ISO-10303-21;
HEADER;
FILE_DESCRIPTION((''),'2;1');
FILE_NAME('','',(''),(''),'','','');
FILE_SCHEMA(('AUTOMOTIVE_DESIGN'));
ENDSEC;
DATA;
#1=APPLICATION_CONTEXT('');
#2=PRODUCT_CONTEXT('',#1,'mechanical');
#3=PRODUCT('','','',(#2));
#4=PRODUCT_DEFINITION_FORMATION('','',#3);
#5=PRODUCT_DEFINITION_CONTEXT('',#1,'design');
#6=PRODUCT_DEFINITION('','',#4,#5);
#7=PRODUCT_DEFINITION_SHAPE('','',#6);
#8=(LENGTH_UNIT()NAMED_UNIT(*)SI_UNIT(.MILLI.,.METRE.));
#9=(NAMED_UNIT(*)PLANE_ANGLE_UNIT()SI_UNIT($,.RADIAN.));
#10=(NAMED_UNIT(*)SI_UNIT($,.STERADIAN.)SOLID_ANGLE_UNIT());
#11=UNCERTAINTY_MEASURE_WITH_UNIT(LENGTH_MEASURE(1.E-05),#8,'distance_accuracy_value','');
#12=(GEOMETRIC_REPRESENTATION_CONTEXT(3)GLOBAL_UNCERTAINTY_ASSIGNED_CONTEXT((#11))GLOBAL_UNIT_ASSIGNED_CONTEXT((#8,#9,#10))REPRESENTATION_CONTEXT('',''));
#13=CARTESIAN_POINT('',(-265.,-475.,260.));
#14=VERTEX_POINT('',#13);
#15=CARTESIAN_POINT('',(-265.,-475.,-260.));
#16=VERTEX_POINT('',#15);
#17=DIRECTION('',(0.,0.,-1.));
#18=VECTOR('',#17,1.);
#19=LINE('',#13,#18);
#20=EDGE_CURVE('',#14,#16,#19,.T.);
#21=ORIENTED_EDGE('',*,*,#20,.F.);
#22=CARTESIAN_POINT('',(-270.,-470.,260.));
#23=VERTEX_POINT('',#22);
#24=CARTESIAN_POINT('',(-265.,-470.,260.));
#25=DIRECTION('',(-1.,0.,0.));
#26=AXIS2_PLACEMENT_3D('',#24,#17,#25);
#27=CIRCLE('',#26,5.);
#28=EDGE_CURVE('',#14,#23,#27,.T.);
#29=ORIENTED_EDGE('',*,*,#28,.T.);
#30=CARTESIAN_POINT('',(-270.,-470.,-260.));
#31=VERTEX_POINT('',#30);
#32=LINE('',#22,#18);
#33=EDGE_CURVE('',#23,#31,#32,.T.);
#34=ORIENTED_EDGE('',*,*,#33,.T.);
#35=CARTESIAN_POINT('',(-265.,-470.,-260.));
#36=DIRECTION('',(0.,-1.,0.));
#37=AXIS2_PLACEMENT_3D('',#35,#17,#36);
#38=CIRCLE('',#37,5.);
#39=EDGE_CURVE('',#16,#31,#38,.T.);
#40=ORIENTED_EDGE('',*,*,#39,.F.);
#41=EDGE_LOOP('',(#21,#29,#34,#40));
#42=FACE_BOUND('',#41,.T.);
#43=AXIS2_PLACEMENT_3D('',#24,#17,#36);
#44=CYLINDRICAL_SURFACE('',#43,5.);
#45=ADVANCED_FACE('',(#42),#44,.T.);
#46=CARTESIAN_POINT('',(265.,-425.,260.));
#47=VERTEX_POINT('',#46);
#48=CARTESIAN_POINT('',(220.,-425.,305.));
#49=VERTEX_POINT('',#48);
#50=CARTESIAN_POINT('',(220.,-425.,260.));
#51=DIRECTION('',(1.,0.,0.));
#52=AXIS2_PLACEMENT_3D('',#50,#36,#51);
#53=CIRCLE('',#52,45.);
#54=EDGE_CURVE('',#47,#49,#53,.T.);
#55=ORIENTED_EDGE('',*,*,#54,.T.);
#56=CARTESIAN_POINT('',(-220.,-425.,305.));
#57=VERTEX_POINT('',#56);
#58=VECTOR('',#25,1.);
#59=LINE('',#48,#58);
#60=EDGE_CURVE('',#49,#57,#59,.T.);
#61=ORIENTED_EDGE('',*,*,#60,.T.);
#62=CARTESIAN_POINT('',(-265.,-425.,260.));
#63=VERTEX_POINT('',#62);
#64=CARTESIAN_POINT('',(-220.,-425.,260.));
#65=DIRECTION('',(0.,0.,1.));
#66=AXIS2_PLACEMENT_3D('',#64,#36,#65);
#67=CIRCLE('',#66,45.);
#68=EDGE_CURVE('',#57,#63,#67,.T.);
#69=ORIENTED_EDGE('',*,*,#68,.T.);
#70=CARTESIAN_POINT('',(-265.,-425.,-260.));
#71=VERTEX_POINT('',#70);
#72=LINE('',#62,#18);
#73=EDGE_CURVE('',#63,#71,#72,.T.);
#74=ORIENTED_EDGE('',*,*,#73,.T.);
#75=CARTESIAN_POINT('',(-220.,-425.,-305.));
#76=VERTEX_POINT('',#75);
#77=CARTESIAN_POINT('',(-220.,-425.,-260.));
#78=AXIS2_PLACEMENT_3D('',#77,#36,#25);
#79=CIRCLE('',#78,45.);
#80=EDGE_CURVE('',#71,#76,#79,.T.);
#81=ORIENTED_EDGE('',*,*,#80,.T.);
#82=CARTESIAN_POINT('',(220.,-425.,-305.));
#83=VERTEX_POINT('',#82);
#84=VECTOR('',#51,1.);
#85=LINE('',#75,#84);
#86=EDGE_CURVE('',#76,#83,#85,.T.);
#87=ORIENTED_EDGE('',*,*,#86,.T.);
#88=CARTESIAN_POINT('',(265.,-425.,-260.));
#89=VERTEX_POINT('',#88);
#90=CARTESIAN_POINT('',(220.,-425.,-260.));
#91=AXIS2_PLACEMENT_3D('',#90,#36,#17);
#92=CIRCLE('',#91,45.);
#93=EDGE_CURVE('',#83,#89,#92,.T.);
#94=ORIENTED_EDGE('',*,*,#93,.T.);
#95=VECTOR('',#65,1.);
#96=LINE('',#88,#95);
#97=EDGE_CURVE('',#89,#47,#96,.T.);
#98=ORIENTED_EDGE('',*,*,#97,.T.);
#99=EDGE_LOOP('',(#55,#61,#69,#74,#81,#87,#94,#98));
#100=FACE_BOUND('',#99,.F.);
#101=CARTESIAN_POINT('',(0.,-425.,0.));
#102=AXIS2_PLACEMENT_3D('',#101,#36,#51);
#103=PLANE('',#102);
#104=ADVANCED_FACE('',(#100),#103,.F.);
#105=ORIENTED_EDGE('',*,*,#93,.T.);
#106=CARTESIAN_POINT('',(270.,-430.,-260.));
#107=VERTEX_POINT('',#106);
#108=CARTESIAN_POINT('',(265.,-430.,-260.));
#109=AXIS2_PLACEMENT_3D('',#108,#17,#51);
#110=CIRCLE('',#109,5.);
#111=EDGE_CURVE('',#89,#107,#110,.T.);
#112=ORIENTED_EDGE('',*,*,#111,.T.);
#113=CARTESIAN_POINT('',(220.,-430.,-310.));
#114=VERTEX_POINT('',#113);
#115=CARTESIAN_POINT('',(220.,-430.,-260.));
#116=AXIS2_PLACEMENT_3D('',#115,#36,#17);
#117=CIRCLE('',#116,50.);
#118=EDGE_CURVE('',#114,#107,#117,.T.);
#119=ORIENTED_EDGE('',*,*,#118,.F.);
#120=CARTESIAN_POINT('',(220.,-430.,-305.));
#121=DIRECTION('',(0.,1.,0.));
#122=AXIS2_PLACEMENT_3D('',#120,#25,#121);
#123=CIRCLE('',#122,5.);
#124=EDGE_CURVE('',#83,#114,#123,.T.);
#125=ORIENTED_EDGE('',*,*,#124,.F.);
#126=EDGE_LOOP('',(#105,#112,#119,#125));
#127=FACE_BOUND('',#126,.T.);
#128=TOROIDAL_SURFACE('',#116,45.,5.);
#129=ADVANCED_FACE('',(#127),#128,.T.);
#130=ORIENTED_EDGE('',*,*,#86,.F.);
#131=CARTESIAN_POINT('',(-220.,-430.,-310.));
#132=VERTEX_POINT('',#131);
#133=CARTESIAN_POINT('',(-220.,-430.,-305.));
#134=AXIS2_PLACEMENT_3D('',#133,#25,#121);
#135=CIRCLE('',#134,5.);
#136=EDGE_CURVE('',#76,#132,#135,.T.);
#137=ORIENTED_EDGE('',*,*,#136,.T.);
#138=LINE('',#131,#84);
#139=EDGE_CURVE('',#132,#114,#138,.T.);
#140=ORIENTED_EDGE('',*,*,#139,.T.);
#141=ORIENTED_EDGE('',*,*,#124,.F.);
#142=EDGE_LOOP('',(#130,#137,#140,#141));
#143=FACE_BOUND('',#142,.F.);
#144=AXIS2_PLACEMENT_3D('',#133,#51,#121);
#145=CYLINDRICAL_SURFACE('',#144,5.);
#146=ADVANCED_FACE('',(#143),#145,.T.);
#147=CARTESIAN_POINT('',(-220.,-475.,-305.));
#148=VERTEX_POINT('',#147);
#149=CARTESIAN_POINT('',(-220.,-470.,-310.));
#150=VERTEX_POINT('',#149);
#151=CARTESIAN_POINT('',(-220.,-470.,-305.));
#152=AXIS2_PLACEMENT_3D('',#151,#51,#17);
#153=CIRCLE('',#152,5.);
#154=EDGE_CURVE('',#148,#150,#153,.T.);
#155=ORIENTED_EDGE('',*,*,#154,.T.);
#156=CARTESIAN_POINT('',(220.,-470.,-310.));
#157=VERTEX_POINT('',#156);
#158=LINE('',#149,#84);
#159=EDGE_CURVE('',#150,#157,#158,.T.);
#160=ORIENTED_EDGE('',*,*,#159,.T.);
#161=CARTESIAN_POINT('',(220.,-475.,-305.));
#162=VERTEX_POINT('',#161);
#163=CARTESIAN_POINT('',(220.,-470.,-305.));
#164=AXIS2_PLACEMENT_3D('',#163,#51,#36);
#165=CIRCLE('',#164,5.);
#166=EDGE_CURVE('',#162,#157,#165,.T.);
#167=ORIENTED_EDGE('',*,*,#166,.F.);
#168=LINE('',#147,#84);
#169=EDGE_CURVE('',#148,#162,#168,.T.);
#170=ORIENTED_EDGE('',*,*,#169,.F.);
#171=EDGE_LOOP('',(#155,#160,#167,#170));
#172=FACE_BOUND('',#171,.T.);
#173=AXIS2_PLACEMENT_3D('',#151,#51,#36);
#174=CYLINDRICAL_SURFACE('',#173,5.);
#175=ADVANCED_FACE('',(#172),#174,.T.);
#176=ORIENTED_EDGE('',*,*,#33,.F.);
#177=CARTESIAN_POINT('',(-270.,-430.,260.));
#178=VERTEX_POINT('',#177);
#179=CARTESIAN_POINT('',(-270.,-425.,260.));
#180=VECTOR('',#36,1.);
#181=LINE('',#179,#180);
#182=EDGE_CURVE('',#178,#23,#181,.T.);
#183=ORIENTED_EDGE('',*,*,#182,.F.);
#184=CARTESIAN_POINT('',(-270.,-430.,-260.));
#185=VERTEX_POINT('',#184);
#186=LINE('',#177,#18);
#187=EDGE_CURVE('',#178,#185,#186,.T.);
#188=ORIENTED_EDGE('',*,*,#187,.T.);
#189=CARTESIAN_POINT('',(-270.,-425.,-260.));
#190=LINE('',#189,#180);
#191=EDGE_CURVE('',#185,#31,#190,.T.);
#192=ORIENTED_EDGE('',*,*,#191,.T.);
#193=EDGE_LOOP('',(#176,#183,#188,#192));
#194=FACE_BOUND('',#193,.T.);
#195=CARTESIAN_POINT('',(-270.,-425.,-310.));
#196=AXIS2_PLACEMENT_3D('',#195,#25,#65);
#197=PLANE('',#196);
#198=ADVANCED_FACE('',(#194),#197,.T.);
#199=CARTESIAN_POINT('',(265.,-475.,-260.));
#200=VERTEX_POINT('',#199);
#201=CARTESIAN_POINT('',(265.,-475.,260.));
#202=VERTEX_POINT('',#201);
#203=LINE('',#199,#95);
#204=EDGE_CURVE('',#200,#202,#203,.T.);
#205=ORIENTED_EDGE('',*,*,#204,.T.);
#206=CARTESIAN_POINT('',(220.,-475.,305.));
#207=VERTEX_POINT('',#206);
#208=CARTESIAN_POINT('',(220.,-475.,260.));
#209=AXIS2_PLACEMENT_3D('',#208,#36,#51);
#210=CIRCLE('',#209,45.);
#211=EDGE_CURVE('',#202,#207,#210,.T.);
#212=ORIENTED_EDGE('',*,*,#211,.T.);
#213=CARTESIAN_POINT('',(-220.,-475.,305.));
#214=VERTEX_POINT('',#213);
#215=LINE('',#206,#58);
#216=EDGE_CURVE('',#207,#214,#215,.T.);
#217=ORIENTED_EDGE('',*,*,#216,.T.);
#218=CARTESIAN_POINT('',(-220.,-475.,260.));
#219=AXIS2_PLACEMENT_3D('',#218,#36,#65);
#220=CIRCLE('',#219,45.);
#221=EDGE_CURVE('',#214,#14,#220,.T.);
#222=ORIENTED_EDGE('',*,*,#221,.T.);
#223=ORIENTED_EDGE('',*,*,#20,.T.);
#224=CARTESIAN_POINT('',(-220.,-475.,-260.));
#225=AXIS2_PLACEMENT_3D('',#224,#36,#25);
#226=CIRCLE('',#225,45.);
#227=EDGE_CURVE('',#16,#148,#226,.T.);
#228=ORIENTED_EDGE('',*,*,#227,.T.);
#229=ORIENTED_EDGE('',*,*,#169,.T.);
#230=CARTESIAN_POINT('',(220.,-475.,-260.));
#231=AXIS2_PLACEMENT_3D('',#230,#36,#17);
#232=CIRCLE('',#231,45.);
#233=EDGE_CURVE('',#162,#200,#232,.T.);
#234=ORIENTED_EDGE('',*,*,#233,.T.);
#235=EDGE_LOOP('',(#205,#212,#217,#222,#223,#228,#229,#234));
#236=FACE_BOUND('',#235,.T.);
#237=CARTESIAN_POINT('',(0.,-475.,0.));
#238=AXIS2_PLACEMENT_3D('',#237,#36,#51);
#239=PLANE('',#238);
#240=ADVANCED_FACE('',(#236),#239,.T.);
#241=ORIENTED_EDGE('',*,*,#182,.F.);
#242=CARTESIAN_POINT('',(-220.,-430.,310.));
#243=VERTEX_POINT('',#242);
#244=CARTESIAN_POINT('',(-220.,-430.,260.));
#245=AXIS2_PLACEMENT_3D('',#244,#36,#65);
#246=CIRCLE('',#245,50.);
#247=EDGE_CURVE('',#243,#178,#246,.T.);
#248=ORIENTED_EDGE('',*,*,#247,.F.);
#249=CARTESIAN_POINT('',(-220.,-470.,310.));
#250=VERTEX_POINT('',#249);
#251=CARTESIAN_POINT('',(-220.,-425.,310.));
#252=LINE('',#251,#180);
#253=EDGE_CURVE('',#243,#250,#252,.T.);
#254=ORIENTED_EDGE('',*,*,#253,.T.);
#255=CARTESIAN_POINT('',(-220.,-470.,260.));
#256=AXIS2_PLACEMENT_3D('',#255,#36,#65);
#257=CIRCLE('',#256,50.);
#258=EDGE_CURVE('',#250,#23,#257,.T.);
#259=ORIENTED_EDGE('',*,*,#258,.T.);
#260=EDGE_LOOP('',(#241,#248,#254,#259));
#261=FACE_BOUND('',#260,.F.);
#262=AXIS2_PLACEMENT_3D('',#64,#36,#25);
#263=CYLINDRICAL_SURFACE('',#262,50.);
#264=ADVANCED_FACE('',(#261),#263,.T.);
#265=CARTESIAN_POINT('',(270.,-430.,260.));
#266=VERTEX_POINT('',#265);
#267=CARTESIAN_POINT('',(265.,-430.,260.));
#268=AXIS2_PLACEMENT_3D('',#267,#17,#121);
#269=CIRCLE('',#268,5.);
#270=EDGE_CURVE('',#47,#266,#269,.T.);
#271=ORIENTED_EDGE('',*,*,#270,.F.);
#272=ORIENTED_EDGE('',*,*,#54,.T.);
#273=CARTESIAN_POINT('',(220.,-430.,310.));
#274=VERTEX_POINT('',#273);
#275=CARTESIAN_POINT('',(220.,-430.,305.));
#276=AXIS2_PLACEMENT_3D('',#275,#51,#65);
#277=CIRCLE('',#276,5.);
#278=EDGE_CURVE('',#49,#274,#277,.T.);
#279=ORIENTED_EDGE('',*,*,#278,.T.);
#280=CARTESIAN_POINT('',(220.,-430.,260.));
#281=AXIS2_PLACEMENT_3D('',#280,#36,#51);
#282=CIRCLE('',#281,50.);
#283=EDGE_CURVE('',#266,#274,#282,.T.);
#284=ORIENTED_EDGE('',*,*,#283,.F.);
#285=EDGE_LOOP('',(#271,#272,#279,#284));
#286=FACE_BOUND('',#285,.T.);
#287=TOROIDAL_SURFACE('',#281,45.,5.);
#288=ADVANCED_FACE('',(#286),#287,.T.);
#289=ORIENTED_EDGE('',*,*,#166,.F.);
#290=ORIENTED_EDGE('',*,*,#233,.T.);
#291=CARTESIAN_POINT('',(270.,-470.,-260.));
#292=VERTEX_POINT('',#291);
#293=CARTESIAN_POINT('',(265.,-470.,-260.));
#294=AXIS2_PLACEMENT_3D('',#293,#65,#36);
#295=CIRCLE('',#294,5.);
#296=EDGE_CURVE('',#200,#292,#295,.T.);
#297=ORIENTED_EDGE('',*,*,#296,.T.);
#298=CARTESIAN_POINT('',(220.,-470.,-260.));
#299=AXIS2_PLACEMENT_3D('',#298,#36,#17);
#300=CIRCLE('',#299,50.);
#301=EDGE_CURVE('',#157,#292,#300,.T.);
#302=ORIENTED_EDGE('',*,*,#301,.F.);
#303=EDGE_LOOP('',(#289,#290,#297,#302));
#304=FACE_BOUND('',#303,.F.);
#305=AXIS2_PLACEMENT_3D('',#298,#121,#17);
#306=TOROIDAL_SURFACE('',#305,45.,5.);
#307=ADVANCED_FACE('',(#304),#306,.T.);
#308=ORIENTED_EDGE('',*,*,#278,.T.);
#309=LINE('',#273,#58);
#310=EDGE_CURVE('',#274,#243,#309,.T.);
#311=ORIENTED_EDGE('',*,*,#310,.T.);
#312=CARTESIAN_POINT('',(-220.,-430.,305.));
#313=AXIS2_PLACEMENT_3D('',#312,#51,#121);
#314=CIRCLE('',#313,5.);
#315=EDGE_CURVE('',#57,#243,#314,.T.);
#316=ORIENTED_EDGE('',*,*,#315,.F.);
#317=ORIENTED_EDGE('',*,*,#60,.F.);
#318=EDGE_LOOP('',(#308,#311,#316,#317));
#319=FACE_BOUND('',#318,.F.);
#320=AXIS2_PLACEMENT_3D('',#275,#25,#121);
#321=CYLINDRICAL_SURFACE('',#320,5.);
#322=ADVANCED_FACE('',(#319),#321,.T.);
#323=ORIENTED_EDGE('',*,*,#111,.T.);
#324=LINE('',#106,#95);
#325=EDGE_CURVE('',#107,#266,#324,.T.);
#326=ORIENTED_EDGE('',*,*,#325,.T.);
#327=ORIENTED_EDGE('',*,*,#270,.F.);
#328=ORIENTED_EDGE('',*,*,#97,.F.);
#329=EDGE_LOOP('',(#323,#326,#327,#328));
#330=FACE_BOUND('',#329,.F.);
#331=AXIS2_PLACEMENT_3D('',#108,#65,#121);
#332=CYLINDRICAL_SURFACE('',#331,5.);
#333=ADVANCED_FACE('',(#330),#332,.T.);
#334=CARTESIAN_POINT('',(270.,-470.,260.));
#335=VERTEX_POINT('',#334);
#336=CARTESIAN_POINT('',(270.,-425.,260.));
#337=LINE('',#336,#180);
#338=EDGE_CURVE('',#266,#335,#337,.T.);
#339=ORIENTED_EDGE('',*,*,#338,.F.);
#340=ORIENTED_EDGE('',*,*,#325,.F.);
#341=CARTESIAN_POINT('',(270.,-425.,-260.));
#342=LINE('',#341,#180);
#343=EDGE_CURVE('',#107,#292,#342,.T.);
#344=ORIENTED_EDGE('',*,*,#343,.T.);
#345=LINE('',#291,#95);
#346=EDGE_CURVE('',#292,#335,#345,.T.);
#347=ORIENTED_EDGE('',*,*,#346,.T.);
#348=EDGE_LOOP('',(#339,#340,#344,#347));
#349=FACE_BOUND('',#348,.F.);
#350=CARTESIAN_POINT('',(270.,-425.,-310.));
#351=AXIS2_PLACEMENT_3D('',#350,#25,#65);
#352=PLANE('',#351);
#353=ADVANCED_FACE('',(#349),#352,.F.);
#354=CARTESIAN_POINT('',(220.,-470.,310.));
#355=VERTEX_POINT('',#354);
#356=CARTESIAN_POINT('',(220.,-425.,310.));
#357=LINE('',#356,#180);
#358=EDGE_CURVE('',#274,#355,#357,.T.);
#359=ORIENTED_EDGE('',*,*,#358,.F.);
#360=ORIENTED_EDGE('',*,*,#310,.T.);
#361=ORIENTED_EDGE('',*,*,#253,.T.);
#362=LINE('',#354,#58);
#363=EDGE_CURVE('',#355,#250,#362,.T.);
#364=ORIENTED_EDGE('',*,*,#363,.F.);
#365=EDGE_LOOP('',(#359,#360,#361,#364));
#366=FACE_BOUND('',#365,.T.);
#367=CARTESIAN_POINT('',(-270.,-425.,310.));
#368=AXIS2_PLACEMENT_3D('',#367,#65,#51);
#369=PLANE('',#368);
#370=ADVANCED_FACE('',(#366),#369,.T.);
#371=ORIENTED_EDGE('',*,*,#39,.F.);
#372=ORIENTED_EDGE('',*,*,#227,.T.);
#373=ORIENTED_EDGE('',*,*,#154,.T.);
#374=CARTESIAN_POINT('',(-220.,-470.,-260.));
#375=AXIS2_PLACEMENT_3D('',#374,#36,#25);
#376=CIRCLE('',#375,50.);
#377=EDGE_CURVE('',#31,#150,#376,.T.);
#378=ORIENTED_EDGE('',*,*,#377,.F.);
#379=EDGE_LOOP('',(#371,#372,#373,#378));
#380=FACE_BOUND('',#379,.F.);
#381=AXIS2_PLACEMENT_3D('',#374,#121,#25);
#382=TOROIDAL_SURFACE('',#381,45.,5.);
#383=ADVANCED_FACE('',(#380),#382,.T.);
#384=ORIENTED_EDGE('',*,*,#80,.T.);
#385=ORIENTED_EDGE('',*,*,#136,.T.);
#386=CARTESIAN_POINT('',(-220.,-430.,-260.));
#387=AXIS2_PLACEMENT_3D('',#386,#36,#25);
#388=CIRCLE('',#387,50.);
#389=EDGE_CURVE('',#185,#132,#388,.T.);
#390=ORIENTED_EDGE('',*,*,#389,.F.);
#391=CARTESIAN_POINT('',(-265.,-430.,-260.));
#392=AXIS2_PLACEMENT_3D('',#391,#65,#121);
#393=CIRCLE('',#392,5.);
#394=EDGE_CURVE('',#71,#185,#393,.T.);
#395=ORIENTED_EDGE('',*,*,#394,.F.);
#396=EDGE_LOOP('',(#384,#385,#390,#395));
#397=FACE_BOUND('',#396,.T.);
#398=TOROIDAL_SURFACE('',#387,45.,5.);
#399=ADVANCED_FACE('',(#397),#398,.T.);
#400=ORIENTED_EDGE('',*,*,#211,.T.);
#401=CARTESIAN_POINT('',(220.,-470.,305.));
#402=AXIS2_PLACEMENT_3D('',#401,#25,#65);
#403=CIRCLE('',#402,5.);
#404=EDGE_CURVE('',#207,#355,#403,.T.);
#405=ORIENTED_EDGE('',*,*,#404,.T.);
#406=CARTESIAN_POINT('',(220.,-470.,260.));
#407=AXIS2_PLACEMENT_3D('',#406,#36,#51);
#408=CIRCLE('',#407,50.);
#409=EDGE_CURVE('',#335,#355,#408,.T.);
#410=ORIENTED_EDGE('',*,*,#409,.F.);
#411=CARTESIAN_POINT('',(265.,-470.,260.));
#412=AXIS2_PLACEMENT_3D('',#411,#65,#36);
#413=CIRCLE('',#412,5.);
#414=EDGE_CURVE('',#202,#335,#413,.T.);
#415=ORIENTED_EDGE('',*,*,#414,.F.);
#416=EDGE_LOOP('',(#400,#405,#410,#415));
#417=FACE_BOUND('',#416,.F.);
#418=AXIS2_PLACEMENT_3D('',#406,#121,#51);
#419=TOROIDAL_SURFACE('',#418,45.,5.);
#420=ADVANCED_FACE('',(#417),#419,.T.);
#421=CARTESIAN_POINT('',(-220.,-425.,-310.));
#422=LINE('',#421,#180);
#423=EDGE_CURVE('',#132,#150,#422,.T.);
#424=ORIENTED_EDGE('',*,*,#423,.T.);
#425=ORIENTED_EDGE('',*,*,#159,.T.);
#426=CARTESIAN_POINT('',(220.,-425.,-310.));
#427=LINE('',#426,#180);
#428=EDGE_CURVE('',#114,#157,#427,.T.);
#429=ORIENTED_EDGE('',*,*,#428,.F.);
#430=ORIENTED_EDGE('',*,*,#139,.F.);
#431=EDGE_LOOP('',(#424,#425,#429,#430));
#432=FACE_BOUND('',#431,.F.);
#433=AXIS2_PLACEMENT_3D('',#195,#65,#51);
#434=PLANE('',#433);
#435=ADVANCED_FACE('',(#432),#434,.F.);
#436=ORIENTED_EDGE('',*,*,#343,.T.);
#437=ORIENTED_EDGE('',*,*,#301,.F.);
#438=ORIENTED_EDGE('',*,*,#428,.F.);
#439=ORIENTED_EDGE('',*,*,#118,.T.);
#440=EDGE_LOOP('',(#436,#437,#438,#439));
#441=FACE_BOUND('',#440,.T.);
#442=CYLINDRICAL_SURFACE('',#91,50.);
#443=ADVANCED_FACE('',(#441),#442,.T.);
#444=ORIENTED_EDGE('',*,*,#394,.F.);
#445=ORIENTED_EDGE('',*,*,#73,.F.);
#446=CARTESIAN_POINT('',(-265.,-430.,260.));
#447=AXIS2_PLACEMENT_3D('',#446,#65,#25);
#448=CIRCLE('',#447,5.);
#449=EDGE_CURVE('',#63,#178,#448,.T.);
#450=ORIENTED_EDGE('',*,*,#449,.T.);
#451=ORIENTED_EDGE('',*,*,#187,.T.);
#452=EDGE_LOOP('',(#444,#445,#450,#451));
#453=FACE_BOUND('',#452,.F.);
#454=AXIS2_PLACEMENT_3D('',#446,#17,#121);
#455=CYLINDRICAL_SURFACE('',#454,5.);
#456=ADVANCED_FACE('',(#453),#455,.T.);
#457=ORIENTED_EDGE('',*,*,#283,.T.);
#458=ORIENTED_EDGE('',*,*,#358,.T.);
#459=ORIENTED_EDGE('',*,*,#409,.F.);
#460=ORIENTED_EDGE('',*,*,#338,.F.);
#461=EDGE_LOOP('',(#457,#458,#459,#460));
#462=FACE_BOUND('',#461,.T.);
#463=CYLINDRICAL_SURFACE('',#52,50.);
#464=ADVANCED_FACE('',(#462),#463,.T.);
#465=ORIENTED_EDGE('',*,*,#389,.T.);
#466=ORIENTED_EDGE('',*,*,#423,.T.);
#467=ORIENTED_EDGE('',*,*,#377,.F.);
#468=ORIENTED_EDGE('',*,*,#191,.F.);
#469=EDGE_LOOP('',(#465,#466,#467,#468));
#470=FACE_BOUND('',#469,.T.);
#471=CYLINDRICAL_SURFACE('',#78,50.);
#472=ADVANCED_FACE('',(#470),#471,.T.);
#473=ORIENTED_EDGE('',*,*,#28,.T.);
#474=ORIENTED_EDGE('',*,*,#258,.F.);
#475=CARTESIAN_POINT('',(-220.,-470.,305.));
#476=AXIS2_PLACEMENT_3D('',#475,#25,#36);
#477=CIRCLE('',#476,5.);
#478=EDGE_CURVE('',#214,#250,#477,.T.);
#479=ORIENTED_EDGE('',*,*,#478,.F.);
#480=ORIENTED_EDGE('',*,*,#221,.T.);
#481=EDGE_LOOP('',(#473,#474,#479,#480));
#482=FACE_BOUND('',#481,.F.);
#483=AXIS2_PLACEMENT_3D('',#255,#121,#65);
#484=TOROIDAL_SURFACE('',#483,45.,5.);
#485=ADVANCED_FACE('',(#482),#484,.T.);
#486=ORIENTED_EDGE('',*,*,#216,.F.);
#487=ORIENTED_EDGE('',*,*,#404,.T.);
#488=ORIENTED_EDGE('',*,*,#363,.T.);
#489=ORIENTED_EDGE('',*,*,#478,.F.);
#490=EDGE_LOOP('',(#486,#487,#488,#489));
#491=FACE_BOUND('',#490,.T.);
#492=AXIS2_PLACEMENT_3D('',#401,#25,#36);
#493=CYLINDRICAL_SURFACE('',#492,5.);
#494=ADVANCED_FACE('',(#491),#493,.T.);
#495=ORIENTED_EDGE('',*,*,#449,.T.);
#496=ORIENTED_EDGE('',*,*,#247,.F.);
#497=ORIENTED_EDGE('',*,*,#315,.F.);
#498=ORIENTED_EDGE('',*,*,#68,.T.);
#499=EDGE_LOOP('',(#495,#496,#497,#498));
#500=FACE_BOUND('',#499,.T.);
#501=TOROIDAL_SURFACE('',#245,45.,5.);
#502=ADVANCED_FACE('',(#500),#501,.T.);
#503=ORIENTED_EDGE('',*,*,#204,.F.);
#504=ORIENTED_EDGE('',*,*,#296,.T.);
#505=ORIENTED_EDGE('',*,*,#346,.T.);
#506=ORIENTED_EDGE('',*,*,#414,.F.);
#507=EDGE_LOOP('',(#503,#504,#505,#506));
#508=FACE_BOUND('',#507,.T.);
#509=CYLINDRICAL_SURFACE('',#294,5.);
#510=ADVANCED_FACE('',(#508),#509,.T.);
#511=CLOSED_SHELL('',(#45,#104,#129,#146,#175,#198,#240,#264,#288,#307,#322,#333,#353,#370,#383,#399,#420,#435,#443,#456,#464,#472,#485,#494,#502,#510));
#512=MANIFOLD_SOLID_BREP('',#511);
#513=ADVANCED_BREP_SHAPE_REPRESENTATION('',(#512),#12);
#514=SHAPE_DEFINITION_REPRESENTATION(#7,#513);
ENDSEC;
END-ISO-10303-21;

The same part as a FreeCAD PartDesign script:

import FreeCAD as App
import Part
import Sketcher

V = App.Vector


def edges_at(feature, points):
    """Names of the edges that pass closest to the given points."""
    edges = feature.Shape.Edges
    near = lambda p: min(range(len(edges)), key=lambda i: edges[i].distToShape(Part.Vertex(*p))[0])
    return sorted({f"Edge{near(p) + 1}" for p in points})


def add_polygon(sketch, points):
    """Adds a closed chain of lines whose ends are joined by coincident constraints."""
    first, n = sketch.GeometryCount, len(points)
    for a, b in zip(points, points[1:] + points[:1]):
        sketch.addGeometry(Part.LineSegment(App.Vector(*a, 0), App.Vector(*b, 0)), False)
    for i in range(n):
        sketch.addConstraint(Sketcher.Constraint("Coincident", first + i, 2, first + (i + 1) % n, 1))

doc = App.newDocument("Part")
body = doc.addObject("PartDesign::Body", "Body")

sketch1 = body.newObject("Sketcher::SketchObject", "Sketch")
sketch1.AttachmentSupport = (doc.getObject("XZ_Plane"), [""])
sketch1.MapMode = "FlatFace"
sketch1.AttachmentOffset = App.Placement(V(0, 0, 425), App.Rotation())
add_polygon(sketch1, [(-270, 310), (-270, -310), (270, -310), (270, 310)])
sketch1.addConstraint(Sketcher.Constraint("Vertical", 0))
sketch1.addConstraint(Sketcher.Constraint("Horizontal", 1))
sketch1.addConstraint(Sketcher.Constraint("Vertical", 2))
sketch1.addConstraint(Sketcher.Constraint("Horizontal", 3))
sketch1.addConstraint(Sketcher.Constraint("Symmetric", 0, 2, 2, 2, -1, 1))
sketch1.addConstraint(Sketcher.Constraint("DistanceX", 1, 1, 1, 2, 540.0))
sketch1.addConstraint(Sketcher.Constraint("DistanceY", 0, 2, 0, 1, 620.0))
pad1 = body.newObject("PartDesign::Pad", "Pad")
pad1.Profile = sketch1
pad1.Length = 50
doc.recompute()

fillet = body.newObject("PartDesign::Fillet", "Fillet")
fillet.Base = (pad1, edges_at(pad1, [
    (270, -450, -310),
    (-270, -450, -310),
    (270, -450, 310),
    (-270, -450, 310),
]))
fillet.Radius = 50
doc.recompute()

fillet2 = body.newObject("PartDesign::Fillet", "Fillet001")
fillet2.Base = (fillet, edges_at(fillet, [(270, -475, 0), (0, -425, -310)]))
fillet2.Radius = 5

doc.recompute()
